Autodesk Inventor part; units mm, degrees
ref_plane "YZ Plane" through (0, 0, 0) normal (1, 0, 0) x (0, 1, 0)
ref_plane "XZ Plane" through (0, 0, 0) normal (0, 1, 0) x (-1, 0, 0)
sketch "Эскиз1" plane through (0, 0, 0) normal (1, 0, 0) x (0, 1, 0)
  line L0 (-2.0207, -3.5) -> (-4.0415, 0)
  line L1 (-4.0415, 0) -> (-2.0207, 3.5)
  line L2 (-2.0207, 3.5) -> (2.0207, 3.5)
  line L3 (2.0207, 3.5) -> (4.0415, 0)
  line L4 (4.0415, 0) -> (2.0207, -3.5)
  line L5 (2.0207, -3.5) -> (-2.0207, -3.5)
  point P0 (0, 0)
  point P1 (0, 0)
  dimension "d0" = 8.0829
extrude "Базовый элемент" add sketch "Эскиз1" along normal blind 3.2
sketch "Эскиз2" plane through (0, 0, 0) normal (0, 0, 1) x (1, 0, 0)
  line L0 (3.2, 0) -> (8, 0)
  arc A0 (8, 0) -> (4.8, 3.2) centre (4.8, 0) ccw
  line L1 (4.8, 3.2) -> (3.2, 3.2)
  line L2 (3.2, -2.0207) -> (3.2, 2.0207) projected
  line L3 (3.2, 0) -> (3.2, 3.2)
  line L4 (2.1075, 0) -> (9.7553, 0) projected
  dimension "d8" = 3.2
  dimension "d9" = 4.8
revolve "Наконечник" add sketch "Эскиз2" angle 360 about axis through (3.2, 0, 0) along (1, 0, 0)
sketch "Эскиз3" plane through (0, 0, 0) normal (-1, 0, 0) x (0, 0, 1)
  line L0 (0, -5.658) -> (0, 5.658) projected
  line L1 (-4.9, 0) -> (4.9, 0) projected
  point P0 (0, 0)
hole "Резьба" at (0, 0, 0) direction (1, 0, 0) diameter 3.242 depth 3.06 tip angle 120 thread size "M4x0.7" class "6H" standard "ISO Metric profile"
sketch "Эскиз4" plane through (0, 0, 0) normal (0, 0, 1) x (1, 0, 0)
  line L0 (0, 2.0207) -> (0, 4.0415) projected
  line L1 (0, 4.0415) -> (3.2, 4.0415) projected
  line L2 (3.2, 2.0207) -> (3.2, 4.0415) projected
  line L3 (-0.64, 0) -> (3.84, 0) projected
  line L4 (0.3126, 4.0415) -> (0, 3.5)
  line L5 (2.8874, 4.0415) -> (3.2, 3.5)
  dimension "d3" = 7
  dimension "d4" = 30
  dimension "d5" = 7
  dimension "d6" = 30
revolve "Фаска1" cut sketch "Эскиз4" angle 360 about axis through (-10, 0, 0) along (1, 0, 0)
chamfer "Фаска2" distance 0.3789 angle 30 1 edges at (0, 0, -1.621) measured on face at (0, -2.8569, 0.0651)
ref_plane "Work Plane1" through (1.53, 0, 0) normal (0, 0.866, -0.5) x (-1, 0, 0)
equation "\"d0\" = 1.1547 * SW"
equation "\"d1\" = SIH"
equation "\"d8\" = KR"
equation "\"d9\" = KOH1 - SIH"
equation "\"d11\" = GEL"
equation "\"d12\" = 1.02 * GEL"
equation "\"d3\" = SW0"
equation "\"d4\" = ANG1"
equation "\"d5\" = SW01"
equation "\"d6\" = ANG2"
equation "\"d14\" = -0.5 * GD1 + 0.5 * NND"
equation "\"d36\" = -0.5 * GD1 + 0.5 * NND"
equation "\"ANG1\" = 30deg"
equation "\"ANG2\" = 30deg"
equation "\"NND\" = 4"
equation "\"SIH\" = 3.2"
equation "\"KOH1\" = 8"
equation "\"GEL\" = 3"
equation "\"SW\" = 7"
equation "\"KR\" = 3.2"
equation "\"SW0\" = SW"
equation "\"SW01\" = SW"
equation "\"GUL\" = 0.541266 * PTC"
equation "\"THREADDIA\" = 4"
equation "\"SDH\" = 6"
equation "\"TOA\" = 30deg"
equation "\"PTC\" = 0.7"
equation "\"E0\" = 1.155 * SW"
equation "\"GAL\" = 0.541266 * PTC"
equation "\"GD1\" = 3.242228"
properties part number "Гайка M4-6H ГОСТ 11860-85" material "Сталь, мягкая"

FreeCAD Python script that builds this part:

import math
import FreeCAD as App
import Part
import Sketcher
from FreeCAD import Vector
Q = App.Units.Quantity


def edges_at(feature, points):
    """Names of the edges that pass closest to the given points."""
    edges = feature.Shape.Edges
    near = lambda p: min(range(len(edges)), key=lambda i: edges[i].distToShape(Part.Vertex(*p))[0])
    return sorted({f"Edge{near(p) + 1}" for p in points})


def add_polygon(sketch, points):
    """Adds a closed chain of lines whose ends are joined by coincident constraints."""
    first, n = sketch.GeometryCount, len(points)
    for a, b in zip(points, points[1:] + points[:1]):
        sketch.addGeometry(Part.LineSegment(App.Vector(*a, 0), App.Vector(*b, 0)), False)
    for i in range(n):
        sketch.addConstraint(Sketcher.Constraint("Coincident", first + i, 2, first + (i + 1) % n, 1))

doc = App.newDocument("Part")
params = doc.addObject("Spreadsheet::Sheet", "Params")
for row, (alias, value) in enumerate([
    ("pad1_length", "3.2 mm"),
    ("sketch2_radius", "3.2 mm"),
    ("sketch2_width", "4.8 mm"),
    ("revolution_angle", "360 deg"),
    ("hole_diameter", "3.242 mm"),
    ("hole_depth", "3.06 mm"),
    ("groove_angle", "360 deg"),
    ("chamfer_size", "0.3789 mm"),
], start=1):
    params.set(f"A{row}", alias)
    params.set(f"B{row}", "=" + value)
    params.setAlias(f"B{row}", alias)

body = doc.addObject("PartDesign::Body", "Body")

# Sketch on YZ plane
sketch1 = body.newObject("Sketcher::SketchObject", "Sketch")
sketch1.AttachmentSupport = (doc.getObject("YZ_Plane"), [""])
sketch1.MapMode = "FlatFace"
add_polygon(sketch1, [(-4, 0), (-2, -3.5), (2, -3.5), (4, 0), (2, 3.5), (-2, 3.5)])  # lines 0-5
sketch1.addConstraint(Sketcher.Constraint("Horizontal", 1))
sketch1.addConstraint(Sketcher.Constraint("Horizontal", 4))
sketch1.addConstraint(Sketcher.Constraint("Symmetric", 0, 2, 3, 2, -1, 1))
sketch1.addConstraint(Sketcher.Constraint("Symmetric", 2, 2, 5, 2, -1, 1))
sketch1.addConstraint(Sketcher.Constraint("PointOnObject", 2, 2, -1))
sketch1.addConstraint(Sketcher.Constraint("Parallel", 2, 5))
sketch1.addConstraint(Sketcher.Constraint("Vertical", 1, 2, 3, 2))
sketch1.addConstraint(Sketcher.Constraint("Angle", 0, Q("-59.999 deg")))
sketch1.addConstraint(Sketcher.Constraint("DistanceY", 1, 2, 3, 2, 7.0))
sketch1.addConstraint(Sketcher.Constraint("DistanceX", 5, 2, 2, 2, 8.083))
pad1 = body.newObject("PartDesign::Pad", "Pad")
pad1.Profile = sketch1
pad1.setExpression("Length", "Params.pad1_length")

# Sketch on XY plane
sketch2 = body.newObject("Sketcher::SketchObject", "Sketch001")
sketch2.AttachmentSupport = (doc.getObject("XY_Plane"), [""])
sketch2.MapMode = "FlatFace"
sketch2.addGeometry(Part.LineSegment(Vector(3.2, 3.2, 0), Vector(3.2, 0, 0)), False)
sketch2.addGeometry(Part.LineSegment(Vector(3.2, 0, 0), Vector(8, 0, 0)), False)
sketch2.addGeometry(Part.ArcOfCircle(Part.Circle(Vector(4.8, 0, 0), Vector(0, 0, 1), 3.2), math.radians(0), math.radians(90)), False)
sketch2.addGeometry(Part.LineSegment(Vector(4.8, 3.2, 0), Vector(3.2, 3.2, 0)), False)
sketch2.addConstraint(Sketcher.Constraint("Coincident", 0, 2, 1, 1))
sketch2.addConstraint(Sketcher.Constraint("Coincident", 1, 2, 2, 1))
sketch2.addConstraint(Sketcher.Constraint("Tangent", 2, 2, 3, 1))
sketch2.addConstraint(Sketcher.Constraint("Coincident", 3, 2, 0, 1))
sketch2.addConstraint(Sketcher.Constraint("Vertical", 0))
sketch2.addConstraint(Sketcher.Constraint("Horizontal", 1))
sketch2.addConstraint(Sketcher.Constraint("Horizontal", 3))
sketch2.addConstraint(Sketcher.Constraint("PointOnObject", 2, 3, -1))
sketch2.addConstraint(Sketcher.Constraint("PointOnObject", 0, 2, -1))
sketch2.addConstraint(Sketcher.Constraint("Radius", 2, 3.2))
sketch2.addConstraint(Sketcher.Constraint("DistanceX", 1, 1, 1, 2, 4.8))
sketch2.addConstraint(Sketcher.Constraint("DistanceX", -1, 1, 2, 3, 4.8))
sketch2.setExpression("Constraints[9]", "Params.sketch2_radius")
sketch2.setExpression("Constraints[10]", "Params.sketch2_width")
revolution = body.newObject("PartDesign::Revolution", "Revolution")
revolution.Profile = sketch2
revolution.ReferenceAxis = (sketch2, ["H_Axis"])
revolution.setExpression("Angle", "Params.revolution_angle")

# Sketch on YZ plane
sketch3 = body.newObject("Sketcher::SketchObject", "Sketch002")
sketch3.AttachmentSupport = (doc.getObject("YZ_Plane"), [""])
sketch3.MapMode = "FlatFace"
sketch3.addGeometry(Part.Circle(Vector(0, 0, 0), Vector(0, 0, 1), 1.6), False)
sketch3.addConstraint(Sketcher.Constraint("Coincident", 0, 3, -1, 1))
sketch3.addConstraint(Sketcher.Constraint("Diameter", 0, 3.242))
doc.recompute()
hole = body.newObject("PartDesign::Hole", "Hole")
hole.Profile = sketch3
hole.ThreadType = "None"
hole.setExpression("Diameter", "Params.hole_diameter")
hole.DepthType = "Dimension"
hole.setExpression("Depth", "Params.hole_depth")
hole.DrillPoint = "Angled"
hole.DrillPointAngle = 120
hole.Reversed = True

# Sketch on XY plane
sketch4 = body.newObject("Sketcher::SketchObject", "Sketch003")
sketch4.AttachmentSupport = (doc.getObject("XY_Plane"), [""])
sketch4.MapMode = "FlatFace"
add_polygon(sketch4, [(3.2, 4.04), (2.89, 4.04), (3.2, 3.5)])  # lines 0-2
add_polygon(sketch4, [(0, 4.04), (0, 3.5), (0.31, 4.04)])  # lines 3-5
sketch4.addConstraint(Sketcher.Constraint("Horizontal", 0))
sketch4.addConstraint(Sketcher.Constraint("Vertical", 2))
sketch4.addConstraint(Sketcher.Constraint("Vertical", 3))
sketch4.addConstraint(Sketcher.Constraint("Horizontal", 5))
sketch4.addConstraint(Sketcher.Constraint("PointOnObject", 3, 2, -2))
sketch4.addConstraint(Sketcher.Constraint("Horizontal", 1, 2, 3, 2))
sketch4.addConstraint(Sketcher.Constraint("Horizontal", 2, 2, 4, 2))
sketch4.addConstraint(Sketcher.Constraint("Equal", 0, 5))
sketch4.addConstraint(Sketcher.Constraint("DistanceX", -1, 1, 1, 2, 3.2))
sketch4.addConstraint(Sketcher.Constraint("DistanceY", -1, 1, 1, 2, 3.5))
sketch4.addConstraint(Sketcher.Constraint("DistanceX", 0, 2, 0, 1, 0.3126))
sketch4.addConstraint(Sketcher.Constraint("DistanceY", 2, 1, 2, 2, 0.5415))
groove = body.newObject("PartDesign::Groove", "Groove")
groove.Profile = sketch4
groove.ReferenceAxis = (sketch4, ["H_Axis"])
groove.setExpression("Angle", "Params.groove_angle")
doc.recompute()

chamfer = body.newObject("PartDesign::Chamfer", "Chamfer")
chamfer.Base = (groove, edges_at(groove, [(0, 0, -1.621)]))
chamfer.ChamferType = "Distance and Angle"
chamfer.setExpression("Size", "Params.chamfer_size")
chamfer.Angle = 30

doc.recompute()
